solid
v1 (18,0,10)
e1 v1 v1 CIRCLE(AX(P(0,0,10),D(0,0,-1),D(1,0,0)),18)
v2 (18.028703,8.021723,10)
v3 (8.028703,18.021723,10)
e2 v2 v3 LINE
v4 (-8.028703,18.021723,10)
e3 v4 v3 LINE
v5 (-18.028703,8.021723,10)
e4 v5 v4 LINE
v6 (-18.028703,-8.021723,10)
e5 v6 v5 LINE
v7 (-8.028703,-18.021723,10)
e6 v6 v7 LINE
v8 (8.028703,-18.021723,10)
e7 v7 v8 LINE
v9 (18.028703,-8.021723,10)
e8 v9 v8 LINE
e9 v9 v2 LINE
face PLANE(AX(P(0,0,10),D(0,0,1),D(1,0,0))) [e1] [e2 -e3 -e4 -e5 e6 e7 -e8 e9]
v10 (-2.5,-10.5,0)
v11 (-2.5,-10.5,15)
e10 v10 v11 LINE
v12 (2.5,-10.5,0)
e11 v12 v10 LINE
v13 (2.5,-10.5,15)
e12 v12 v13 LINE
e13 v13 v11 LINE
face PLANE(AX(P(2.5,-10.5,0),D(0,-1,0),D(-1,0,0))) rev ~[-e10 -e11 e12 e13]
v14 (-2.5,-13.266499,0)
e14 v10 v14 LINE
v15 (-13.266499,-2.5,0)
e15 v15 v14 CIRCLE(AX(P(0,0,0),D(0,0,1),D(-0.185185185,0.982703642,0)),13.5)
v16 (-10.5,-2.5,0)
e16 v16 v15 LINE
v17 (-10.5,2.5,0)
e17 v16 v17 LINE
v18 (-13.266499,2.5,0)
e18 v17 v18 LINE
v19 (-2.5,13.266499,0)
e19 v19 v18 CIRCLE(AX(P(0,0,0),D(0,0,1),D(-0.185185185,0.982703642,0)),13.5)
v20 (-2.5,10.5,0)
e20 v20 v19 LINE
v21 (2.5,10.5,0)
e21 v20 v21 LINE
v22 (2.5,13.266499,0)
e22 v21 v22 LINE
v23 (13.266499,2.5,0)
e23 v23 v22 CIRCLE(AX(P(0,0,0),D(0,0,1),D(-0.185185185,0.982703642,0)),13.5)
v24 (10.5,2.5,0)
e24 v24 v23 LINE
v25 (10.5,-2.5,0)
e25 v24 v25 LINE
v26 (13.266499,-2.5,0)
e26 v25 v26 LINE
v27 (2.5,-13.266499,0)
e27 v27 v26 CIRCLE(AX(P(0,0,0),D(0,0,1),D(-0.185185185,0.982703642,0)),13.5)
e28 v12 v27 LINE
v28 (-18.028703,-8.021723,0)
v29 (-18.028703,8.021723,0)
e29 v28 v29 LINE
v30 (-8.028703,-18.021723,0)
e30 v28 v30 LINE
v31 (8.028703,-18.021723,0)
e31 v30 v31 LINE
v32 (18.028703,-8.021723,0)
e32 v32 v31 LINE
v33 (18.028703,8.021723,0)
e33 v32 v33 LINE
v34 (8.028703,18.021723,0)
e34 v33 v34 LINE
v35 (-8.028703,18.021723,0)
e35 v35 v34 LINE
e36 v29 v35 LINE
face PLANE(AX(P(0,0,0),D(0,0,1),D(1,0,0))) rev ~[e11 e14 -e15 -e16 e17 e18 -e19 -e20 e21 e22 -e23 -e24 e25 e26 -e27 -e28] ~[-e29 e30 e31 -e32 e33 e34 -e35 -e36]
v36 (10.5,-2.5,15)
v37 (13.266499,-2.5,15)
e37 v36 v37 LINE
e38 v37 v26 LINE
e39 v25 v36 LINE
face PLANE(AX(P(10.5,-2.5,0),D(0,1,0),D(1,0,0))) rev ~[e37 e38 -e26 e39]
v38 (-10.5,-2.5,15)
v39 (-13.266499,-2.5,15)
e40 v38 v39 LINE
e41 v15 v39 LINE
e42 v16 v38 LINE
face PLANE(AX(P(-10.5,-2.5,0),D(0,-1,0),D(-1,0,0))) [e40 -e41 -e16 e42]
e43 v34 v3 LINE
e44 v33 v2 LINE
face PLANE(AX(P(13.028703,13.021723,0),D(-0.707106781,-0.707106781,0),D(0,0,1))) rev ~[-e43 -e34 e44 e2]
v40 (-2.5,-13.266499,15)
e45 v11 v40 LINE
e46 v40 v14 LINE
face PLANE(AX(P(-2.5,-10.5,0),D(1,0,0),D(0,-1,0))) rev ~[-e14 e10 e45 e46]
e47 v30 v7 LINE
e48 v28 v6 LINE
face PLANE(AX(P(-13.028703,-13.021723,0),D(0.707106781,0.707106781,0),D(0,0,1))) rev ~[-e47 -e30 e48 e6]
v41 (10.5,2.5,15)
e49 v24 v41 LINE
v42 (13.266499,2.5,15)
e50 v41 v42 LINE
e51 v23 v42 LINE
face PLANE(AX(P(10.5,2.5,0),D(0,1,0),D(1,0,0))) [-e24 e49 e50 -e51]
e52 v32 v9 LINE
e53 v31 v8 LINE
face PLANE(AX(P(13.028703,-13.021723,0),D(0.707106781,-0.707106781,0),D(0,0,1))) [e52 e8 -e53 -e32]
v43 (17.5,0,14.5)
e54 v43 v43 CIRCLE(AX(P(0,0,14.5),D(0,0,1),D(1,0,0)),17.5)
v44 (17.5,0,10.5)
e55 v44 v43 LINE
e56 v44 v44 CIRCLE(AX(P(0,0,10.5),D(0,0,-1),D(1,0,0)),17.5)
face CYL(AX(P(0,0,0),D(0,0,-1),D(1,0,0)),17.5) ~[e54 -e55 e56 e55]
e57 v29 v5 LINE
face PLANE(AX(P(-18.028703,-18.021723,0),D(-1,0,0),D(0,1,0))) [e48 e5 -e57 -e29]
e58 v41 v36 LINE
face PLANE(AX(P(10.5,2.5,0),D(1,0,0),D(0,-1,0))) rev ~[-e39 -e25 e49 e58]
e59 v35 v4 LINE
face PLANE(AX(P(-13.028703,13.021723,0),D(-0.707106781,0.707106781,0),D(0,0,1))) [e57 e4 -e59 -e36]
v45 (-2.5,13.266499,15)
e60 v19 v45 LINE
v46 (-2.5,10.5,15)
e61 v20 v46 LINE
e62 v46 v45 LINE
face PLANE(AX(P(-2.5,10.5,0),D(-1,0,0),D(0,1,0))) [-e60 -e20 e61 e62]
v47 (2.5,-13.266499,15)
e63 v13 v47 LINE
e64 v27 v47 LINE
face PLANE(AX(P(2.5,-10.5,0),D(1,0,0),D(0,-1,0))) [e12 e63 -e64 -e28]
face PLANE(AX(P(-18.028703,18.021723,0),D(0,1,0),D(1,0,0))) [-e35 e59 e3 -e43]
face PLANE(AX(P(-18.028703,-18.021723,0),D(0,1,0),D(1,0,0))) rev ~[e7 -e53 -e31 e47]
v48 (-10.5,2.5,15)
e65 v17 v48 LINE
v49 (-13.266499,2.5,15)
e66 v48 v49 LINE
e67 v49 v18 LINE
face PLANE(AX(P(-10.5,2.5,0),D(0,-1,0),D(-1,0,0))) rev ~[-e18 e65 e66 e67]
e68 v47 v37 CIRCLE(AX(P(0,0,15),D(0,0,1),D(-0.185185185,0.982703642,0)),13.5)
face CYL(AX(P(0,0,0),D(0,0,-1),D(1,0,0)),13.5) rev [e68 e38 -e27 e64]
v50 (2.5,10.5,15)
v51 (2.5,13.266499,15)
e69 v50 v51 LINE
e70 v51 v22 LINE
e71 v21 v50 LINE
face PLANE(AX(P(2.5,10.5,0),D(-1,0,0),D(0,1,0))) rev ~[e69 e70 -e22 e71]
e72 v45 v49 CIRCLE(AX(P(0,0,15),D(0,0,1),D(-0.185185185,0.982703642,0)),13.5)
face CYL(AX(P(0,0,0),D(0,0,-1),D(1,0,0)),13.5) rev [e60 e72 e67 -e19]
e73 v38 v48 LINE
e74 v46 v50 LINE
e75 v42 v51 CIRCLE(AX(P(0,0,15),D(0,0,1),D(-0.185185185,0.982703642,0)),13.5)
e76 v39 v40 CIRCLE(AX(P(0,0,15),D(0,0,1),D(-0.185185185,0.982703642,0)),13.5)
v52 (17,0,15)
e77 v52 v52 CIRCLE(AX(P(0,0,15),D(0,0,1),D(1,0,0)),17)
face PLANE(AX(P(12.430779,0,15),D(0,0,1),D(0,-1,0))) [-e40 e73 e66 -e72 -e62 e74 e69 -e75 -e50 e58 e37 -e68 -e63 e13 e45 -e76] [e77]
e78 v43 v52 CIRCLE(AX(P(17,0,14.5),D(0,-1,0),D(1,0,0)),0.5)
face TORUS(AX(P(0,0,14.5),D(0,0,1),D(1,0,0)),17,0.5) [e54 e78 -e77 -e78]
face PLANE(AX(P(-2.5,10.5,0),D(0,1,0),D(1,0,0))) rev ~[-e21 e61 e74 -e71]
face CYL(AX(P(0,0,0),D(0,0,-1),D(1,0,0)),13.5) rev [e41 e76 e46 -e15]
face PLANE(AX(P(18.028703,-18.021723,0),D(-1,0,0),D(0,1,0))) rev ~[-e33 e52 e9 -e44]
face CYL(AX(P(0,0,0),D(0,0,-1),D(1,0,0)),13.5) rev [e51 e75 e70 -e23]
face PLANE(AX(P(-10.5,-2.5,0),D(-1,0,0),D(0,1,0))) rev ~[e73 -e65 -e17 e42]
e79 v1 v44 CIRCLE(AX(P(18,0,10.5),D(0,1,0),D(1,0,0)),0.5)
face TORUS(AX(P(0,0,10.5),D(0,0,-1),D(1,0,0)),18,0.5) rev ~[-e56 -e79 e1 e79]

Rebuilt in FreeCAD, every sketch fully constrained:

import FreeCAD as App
import Part
import Sketcher
from FreeCAD import Vector
Q = App.Units.Quantity


def edges_at(feature, points):
    """Names of the edges that pass closest to the given points."""
    edges = feature.Shape.Edges
    near = lambda p: min(range(len(edges)), key=lambda i: edges[i].distToShape(Part.Vertex(*p))[0])
    return sorted({f"Edge{near(p) + 1}" for p in points})


def add_polygon(sketch, points):
    """Adds a closed chain of lines whose ends are joined by coincident constraints."""
    first, n = sketch.GeometryCount, len(points)
    for a, b in zip(points, points[1:] + points[:1]):
        sketch.addGeometry(Part.LineSegment(App.Vector(*a, 0), App.Vector(*b, 0)), False)
    for i in range(n):
        sketch.addConstraint(Sketcher.Constraint("Coincident", first + i, 2, first + (i + 1) % n, 1))

doc = App.newDocument("Part")
params = doc.addObject("Spreadsheet::Sheet", "Params")
for row, (alias, value) in enumerate([
    ("sketch1_diameter", "35 mm"),
    ("sketch1_diameter2", "27 mm"),
    ("pad1_length", "15 mm"),
    ("sketch2_width", "5 mm"),
    ("pad2_length", "15 mm"),
    ("sketch3_diameter", "27 mm"),
    ("pad3_length", "10 mm"),
    ("chamfer_size", "10 mm"),
    ("fillet_radius", "0.5 mm"),
    ("fillet2_radius", "0.5 mm"),
], start=1):
    params.set(f"A{row}", alias)
    params.set(f"B{row}", "=" + value)
    params.setAlias(f"B{row}", alias)

body = doc.addObject("PartDesign::Body", "Body")

sketch1 = body.newObject("Sketcher::SketchObject", "Sketch")
sketch1.AttachmentSupport = (doc.getObject("XY_Plane"), [""])
sketch1.MapMode = "FlatFace"
sketch1.addGeometry([
    Part.Circle(Vector(0, 0, 0), Vector(0, 0, 1), 18),
    Part.Circle(Vector(0, 0, 0), Vector(0, 0, 1), 14),
], False)
sketch1.addConstraint([
    Sketcher.Constraint("Coincident", 0, 3, -1, 1),
    Sketcher.Constraint("Coincident", 1, 3, -1, 1),
    Sketcher.Constraint("Diameter", 0, Q("35 mm")),
    Sketcher.Constraint("Diameter", 1, Q("27 mm")),
])
sketch1.setExpression("Constraints[2]", "Params.sketch1_diameter")
sketch1.setExpression("Constraints[3]", "Params.sketch1_diameter2")
pad1 = body.newObject("PartDesign::Pad", "Pad")
pad1.Profile = sketch1
pad1.setExpression("Length", "Params.pad1_length")

sketch2 = body.newObject("Sketcher::SketchObject", "Sketch001")
sketch2.AttachmentSupport = (doc.getObject("XY_Plane"), [""])
sketch2.MapMode = "FlatFace"
add_polygon(sketch2, [(-2.5, 14.4), (-2.5, 10.5), (2.5, 10.5), (2.5, 14.4)])
sketch2.addConstraint([
    Sketcher.Constraint("Vertical", 0),
    Sketcher.Constraint("Horizontal", 1),
    Sketcher.Constraint("Vertical", 2),
    Sketcher.Constraint("Horizontal", 3),
    Sketcher.Constraint("DistanceX", 1, 1, 1, 2, Q("5 mm")),
    Sketcher.Constraint("DistanceX", 0, 2, -1, 1, Q("2.5 mm")),
    Sketcher.Constraint("DistanceY", -1, 1, 0, 2, Q("10.5 mm")),
    Sketcher.Constraint("DistanceY", 0, 2, 0, 1, Q("3.861558 mm")),
])
sketch2.setExpression("Constraints[8]", "Params.sketch2_width")
pad2 = body.newObject("PartDesign::Pad", "Pad001")
pad2.Profile = sketch2
pad2.setExpression("Length", "Params.pad2_length")
body2 = doc.addObject("PartDesign::Body", "Body001")
doc.recompute()

body2.BaseFeature = body
doc.recompute()

body3 = doc.addObject("PartDesign::Body", "Body002")
body3.BaseFeature = body
body3.Placement = App.Placement(Vector(0, 0, 0), App.Rotation(Vector(0, 0, 1), 90))
boolean = body2.newObject("PartDesign::Boolean", "Boolean")
boolean.Type = "Fuse"
boolean.addObjects([body3])
doc.recompute()

body4 = doc.addObject("PartDesign::Body", "Body003")
body4.BaseFeature = body
body4.Placement = App.Placement(Vector(0, 0, 0), App.Rotation(Vector(0, 0, 1), 180))
boolean2 = body2.newObject("PartDesign::Boolean", "Boolean001")
boolean2.Type = "Fuse"
boolean2.addObjects([body4])
doc.recompute()

body.Placement = App.Placement(Vector(0, 0, 0), App.Rotation(Vector(0, 0, 1), 270))
boolean3 = body2.newObject("PartDesign::Boolean", "Boolean002")
boolean3.Type = "Fuse"
boolean3.addObjects([body])

sketch3 = body2.newObject("Sketcher::SketchObject", "Sketch002")
sketch3.AttachmentSupport = (doc.getObject("XY_Plane001"), [""])
sketch3.MapMode = "FlatFace"
add_polygon(sketch3, [(-18, 18), (-18, -18), (18, -18), (18, 18)])
sketch3.addGeometry(Part.Circle(Vector(0, 0, 0), Vector(0, 0, 1), 14), False)
sketch3.addConstraint([
    Sketcher.Constraint("Vertical", 0),
    Sketcher.Constraint("Horizontal", 1),
    Sketcher.Constraint("Vertical", 2),
    Sketcher.Constraint("Horizontal", 3),
    Sketcher.Constraint("Coincident", 4, 3, -1, 1),
    Sketcher.Constraint("Symmetric", 0, 2, 2, 2, -1, 1),
    Sketcher.Constraint("Diameter", 4, Q("27 mm")),
    Sketcher.Constraint("DistanceX", 1, 1, 1, 2, Q("36.057405 mm")),
    Sketcher.Constraint("DistanceY", 0, 2, 0, 1, Q("36.043447 mm")),
])
sketch3.setExpression("Constraints[10]", "Params.sketch3_diameter")
pad3 = body2.newObject("PartDesign::Pad", "Pad002")
pad3.Profile = sketch3
pad3.setExpression("Length", "Params.pad3_length")
doc.recompute()

chamfer = body2.newObject("PartDesign::Chamfer", "Chamfer")
chamfer.Base = (pad3, edges_at(pad3, [
    (18.029, 18.022, 5),
    (-18.029, 18.022, 5),
    (-18.029, -18.022, 5),
    (18.029, -18.022, 5),
]))
chamfer.setExpression("Size", "Params.chamfer_size")
doc.recompute()

fillet = body2.newObject("PartDesign::Fillet", "Fillet")
fillet.Base = (chamfer, edges_at(chamfer, [(-17.5, 0, 10)]))
fillet.setExpression("Radius", "Params.fillet_radius")
doc.recompute()

fillet2 = body2.newObject("PartDesign::Fillet", "Fillet001")
fillet2.Base = (fillet, edges_at(fillet, [(-17.5, 0, 15)]))
fillet2.setExpression("Radius", "Params.fillet2_radius")

doc.recompute()
